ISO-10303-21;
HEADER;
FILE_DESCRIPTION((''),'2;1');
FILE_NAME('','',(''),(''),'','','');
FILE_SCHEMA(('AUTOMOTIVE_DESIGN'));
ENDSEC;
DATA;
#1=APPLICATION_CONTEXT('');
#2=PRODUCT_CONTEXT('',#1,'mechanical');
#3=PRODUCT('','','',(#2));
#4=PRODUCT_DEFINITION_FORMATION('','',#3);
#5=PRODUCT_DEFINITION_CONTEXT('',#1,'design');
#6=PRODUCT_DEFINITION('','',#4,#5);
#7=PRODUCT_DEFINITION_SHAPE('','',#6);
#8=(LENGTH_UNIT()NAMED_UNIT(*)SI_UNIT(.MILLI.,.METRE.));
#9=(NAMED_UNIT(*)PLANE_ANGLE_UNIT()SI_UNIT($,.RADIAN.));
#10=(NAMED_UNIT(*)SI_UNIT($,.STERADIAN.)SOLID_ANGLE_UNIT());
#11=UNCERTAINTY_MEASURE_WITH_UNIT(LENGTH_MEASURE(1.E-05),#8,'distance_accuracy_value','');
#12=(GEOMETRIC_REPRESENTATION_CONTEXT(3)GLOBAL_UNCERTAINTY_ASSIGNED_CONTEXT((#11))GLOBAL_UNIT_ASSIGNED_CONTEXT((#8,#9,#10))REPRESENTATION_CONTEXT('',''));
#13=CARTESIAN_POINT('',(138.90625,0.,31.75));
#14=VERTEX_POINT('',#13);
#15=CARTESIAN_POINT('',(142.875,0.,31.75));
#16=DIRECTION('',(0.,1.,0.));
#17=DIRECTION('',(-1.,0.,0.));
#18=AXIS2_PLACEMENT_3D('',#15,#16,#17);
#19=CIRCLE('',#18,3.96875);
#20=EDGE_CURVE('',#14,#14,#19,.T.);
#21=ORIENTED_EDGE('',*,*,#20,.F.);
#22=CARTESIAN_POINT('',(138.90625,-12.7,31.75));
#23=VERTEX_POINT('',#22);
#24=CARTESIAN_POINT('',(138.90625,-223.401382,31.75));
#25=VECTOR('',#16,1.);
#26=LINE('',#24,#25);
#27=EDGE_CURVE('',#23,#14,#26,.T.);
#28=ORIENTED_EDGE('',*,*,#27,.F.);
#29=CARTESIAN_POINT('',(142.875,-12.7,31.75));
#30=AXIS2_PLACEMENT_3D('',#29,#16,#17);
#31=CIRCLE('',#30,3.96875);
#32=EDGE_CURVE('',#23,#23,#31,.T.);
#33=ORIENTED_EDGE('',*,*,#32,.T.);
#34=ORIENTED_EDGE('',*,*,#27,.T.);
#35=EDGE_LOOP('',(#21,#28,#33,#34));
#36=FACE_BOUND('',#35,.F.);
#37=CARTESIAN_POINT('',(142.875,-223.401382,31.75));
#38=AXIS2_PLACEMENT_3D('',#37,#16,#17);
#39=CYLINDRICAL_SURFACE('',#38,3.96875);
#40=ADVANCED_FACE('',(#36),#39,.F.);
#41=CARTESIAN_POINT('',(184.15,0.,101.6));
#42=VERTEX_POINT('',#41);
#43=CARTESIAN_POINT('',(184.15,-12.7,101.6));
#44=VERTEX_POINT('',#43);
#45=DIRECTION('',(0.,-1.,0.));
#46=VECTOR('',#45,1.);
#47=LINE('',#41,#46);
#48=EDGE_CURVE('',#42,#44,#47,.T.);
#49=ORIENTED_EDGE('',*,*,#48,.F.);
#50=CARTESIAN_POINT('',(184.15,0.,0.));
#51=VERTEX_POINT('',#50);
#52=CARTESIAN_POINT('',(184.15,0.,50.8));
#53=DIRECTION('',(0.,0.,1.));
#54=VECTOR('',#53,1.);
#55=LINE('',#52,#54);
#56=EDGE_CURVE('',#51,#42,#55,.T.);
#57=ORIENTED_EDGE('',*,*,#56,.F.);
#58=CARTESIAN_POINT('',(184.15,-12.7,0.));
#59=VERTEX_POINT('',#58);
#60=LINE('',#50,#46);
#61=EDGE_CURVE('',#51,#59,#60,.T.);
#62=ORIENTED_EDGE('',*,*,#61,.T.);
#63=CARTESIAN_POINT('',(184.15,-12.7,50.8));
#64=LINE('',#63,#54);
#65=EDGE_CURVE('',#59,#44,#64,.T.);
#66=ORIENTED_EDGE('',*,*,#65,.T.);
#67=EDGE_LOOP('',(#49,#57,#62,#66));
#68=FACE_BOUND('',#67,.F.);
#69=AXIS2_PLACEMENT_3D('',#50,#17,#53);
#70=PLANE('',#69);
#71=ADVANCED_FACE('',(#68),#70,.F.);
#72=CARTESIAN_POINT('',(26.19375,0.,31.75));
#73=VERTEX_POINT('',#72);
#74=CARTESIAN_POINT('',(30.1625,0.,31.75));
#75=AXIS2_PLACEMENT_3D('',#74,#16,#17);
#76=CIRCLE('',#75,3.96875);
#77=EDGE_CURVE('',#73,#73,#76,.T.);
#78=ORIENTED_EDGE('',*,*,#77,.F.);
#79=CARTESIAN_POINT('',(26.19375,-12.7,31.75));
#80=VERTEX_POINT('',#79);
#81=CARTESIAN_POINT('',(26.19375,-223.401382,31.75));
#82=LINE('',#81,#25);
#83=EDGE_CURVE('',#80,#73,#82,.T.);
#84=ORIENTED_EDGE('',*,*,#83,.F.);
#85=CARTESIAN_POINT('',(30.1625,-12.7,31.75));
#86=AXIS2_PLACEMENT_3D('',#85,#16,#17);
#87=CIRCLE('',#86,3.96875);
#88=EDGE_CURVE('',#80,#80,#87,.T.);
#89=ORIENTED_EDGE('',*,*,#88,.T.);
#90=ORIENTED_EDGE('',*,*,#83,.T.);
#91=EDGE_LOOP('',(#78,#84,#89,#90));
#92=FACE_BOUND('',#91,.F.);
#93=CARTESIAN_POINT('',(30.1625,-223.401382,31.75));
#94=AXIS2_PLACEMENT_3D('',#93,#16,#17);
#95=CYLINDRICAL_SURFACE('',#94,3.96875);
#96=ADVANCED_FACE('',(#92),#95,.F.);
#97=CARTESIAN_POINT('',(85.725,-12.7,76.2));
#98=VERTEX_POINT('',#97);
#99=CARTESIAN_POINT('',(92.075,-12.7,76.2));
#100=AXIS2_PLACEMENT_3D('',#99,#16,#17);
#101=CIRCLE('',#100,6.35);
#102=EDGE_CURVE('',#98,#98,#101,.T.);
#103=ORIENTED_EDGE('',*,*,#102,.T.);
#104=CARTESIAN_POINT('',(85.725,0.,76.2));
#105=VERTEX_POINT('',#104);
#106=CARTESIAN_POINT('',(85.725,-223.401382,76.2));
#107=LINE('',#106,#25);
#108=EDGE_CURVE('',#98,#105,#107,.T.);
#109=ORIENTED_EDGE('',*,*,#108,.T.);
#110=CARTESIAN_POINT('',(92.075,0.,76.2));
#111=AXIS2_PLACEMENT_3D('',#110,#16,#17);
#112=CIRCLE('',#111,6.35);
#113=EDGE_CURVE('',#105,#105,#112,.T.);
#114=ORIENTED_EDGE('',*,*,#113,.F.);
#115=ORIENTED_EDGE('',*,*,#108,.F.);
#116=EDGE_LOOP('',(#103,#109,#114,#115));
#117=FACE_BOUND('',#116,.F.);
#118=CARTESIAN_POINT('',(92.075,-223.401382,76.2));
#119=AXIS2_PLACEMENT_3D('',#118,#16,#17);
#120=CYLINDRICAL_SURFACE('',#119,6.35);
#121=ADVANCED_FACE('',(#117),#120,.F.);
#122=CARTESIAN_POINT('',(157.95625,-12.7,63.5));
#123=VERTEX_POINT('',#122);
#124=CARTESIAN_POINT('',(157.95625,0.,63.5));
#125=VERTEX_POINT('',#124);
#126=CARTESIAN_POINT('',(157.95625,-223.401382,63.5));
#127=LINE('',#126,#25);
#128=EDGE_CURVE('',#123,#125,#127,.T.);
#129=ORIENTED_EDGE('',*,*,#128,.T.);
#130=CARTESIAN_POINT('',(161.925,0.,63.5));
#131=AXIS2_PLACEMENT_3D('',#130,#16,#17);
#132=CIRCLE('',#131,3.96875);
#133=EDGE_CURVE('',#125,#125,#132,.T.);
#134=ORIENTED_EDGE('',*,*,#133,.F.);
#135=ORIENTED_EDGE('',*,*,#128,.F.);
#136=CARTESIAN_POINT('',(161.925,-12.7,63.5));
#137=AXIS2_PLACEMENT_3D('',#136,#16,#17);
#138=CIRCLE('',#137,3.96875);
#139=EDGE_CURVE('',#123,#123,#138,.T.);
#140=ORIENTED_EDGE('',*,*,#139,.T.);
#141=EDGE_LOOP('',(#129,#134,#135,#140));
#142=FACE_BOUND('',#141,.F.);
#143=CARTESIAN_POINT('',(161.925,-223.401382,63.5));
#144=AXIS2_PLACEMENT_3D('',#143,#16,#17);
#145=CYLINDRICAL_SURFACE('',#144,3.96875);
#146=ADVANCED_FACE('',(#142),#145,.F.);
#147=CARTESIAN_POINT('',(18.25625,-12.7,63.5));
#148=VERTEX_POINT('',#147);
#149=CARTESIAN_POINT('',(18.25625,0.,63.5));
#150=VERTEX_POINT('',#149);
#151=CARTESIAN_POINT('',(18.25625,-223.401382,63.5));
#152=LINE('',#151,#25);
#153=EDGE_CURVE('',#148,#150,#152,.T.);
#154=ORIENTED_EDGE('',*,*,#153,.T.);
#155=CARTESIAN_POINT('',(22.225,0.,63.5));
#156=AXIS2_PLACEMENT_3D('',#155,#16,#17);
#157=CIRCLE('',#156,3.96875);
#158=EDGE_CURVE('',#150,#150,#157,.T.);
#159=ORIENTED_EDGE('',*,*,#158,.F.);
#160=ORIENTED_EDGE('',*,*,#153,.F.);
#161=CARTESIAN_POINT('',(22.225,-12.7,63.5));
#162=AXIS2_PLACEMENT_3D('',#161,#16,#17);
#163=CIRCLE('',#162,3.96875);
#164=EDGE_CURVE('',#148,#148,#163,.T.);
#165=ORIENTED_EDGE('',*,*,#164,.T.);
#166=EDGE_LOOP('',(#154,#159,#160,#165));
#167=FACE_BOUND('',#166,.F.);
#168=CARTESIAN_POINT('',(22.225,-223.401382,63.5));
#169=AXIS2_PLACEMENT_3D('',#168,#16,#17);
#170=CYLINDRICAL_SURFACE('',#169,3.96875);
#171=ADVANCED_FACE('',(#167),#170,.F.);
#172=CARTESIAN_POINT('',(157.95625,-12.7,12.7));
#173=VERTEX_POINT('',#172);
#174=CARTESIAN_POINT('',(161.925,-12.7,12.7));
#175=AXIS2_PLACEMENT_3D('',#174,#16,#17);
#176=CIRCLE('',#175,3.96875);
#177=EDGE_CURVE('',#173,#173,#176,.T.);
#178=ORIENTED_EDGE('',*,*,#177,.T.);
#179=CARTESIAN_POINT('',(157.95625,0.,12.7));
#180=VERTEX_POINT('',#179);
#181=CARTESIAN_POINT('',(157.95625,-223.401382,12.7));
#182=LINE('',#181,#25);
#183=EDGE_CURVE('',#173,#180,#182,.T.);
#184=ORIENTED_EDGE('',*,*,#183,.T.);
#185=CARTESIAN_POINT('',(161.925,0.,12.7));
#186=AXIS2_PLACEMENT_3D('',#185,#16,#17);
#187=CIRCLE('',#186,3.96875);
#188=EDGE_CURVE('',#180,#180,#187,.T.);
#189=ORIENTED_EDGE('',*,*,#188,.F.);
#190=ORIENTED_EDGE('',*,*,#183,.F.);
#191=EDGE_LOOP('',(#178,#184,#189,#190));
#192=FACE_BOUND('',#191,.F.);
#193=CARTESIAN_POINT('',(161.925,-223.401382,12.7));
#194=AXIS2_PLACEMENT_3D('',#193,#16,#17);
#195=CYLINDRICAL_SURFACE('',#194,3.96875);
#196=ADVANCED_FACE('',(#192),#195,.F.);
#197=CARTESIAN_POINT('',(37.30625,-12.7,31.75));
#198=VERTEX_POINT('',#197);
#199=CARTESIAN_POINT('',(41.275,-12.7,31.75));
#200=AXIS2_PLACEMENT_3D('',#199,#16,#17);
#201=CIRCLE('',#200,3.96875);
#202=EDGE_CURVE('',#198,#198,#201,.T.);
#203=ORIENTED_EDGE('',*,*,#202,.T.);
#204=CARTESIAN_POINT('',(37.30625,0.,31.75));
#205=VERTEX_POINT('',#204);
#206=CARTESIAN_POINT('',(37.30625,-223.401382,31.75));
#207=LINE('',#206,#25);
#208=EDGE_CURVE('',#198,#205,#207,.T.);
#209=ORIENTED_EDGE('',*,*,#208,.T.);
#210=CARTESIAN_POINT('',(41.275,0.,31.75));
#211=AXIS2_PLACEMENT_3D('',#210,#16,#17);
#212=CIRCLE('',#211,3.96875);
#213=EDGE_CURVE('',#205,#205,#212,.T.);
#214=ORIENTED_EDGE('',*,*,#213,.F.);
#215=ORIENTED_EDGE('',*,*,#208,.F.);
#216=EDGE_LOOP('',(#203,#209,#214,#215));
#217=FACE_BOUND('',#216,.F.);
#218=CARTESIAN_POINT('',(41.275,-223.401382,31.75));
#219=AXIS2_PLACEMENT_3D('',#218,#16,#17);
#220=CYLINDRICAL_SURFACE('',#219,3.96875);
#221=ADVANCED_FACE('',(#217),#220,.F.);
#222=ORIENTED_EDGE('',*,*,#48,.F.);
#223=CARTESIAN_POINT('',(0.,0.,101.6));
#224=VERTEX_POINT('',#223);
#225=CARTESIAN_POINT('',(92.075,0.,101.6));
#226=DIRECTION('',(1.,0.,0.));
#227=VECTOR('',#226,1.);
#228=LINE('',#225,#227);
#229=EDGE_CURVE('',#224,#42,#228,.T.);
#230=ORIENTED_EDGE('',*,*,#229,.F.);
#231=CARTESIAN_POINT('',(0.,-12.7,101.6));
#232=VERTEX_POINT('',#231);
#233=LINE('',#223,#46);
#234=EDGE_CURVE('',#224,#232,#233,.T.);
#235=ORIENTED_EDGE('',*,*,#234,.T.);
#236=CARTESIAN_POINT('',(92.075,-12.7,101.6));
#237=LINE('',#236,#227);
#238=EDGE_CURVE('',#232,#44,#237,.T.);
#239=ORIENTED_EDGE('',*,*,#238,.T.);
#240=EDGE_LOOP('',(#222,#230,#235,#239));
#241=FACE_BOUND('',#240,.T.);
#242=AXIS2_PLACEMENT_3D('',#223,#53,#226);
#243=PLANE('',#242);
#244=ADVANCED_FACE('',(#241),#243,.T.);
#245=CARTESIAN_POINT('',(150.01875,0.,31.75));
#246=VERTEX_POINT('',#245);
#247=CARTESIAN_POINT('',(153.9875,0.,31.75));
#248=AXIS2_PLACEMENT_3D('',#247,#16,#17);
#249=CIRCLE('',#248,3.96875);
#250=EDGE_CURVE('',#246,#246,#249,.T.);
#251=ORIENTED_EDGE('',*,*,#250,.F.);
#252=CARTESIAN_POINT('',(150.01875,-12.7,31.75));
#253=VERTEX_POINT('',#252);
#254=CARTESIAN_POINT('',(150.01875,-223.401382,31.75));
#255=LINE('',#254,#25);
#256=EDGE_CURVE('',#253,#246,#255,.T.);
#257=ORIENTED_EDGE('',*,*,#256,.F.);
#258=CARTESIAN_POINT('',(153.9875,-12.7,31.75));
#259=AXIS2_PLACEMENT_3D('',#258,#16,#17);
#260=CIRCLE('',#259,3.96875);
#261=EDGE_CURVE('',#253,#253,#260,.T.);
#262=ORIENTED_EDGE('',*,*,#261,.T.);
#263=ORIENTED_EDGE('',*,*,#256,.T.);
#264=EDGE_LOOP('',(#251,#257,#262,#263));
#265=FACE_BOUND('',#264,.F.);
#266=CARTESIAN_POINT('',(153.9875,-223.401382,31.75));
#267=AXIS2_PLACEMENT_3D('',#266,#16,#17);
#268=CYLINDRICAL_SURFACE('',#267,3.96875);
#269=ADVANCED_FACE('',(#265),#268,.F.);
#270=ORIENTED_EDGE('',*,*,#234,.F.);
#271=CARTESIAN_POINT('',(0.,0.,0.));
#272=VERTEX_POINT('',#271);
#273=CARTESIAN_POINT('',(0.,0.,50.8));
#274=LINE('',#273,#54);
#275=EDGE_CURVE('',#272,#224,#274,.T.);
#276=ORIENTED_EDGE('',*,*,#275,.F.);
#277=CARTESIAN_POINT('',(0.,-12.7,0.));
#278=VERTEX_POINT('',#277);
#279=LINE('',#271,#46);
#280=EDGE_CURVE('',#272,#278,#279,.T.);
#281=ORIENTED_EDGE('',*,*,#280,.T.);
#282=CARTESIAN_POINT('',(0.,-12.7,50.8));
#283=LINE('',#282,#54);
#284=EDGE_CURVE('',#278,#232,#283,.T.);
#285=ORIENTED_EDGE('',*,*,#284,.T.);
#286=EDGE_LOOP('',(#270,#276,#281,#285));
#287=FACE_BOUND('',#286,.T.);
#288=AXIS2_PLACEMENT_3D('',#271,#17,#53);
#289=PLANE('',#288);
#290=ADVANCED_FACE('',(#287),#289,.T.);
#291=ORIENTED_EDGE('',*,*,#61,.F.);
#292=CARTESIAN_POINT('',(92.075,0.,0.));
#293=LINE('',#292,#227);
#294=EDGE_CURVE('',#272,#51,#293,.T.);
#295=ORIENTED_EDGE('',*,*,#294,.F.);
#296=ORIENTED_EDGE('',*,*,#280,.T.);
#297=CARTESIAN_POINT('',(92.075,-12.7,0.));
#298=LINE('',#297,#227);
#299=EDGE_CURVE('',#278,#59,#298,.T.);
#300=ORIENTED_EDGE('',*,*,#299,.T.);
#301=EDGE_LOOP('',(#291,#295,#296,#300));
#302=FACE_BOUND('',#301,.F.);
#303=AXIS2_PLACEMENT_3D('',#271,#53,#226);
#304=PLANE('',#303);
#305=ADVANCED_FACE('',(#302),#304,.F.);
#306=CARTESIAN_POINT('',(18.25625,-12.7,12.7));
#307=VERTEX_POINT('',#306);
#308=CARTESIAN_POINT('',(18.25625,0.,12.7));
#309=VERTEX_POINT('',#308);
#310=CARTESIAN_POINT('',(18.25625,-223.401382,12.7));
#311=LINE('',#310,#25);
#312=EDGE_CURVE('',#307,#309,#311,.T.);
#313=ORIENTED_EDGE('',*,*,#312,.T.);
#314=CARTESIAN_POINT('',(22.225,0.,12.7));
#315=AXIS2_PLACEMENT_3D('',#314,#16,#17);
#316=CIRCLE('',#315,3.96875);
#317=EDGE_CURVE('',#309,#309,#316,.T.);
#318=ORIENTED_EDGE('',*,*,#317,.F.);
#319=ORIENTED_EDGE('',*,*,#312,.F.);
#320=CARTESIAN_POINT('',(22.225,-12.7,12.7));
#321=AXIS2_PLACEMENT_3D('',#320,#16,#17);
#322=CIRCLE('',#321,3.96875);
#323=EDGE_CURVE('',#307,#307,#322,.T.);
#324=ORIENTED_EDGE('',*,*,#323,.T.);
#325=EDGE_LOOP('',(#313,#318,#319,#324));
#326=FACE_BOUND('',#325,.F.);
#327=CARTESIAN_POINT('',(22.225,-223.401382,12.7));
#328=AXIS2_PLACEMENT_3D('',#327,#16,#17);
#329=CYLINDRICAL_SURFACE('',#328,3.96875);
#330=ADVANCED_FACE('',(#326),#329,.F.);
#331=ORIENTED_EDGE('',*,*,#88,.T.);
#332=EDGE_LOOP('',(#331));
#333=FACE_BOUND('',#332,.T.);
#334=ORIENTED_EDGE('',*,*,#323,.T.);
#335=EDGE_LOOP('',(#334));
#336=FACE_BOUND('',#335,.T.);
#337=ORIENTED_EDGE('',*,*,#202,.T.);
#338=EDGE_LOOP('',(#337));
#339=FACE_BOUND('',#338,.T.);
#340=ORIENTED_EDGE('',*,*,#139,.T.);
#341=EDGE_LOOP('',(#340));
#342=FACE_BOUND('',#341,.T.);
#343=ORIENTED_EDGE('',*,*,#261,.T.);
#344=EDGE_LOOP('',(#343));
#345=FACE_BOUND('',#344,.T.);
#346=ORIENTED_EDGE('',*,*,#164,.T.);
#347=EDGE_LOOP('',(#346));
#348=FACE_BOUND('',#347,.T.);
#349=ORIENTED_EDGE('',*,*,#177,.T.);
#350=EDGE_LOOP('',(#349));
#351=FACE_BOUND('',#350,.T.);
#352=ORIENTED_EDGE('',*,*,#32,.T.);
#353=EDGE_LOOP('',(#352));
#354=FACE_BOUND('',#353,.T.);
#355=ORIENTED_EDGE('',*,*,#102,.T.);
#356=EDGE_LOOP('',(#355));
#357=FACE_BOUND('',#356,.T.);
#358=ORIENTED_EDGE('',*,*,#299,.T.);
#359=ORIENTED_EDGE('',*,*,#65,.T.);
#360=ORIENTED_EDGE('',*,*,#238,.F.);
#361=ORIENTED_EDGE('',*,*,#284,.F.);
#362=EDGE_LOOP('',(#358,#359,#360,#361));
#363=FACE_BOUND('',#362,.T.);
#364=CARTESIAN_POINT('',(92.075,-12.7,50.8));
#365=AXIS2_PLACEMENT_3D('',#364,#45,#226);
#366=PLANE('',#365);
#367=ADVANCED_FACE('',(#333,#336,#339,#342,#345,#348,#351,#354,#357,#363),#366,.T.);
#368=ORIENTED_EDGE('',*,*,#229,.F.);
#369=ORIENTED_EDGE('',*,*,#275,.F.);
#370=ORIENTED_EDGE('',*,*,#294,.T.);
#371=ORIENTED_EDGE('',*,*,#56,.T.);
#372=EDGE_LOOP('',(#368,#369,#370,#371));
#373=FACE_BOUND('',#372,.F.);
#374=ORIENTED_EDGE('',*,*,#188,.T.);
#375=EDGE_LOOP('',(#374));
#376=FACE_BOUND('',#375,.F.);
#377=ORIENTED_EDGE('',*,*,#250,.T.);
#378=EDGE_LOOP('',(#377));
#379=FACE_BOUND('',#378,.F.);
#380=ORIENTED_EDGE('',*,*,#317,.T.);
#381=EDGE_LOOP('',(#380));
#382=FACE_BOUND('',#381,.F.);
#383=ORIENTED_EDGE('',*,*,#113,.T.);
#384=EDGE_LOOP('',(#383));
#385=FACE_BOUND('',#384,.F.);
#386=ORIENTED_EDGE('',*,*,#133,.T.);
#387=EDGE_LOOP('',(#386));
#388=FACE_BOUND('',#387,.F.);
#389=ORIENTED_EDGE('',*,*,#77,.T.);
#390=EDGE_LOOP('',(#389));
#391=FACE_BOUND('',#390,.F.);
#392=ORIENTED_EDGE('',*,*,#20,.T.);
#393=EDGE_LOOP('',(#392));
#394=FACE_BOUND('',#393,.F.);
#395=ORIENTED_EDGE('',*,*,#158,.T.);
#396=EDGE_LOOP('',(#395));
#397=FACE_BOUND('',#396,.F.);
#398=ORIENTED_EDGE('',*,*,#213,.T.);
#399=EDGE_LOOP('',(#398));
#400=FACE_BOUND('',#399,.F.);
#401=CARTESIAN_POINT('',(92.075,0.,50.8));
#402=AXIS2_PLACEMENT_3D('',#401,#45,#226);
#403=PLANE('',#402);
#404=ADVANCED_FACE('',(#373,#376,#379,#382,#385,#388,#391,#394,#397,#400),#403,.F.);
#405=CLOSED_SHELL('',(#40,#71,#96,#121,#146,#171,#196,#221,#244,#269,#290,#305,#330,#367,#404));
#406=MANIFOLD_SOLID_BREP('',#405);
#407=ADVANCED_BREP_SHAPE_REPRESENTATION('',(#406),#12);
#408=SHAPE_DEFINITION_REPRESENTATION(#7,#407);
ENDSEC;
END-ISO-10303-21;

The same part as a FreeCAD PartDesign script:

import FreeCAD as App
import Part
import Sketcher

V = App.Vector
Q = App.Units.Quantity


def add_polygon(sketch, points):
    """Adds a closed chain of lines whose ends are joined by coincident constraints."""
    first, n = sketch.GeometryCount, len(points)
    for a, b in zip(points, points[1:] + points[:1]):
        sketch.addGeometry(Part.LineSegment(App.Vector(*a, 0), App.Vector(*b, 0)), False)
    for i in range(n):
        sketch.addConstraint(Sketcher.Constraint("Coincident", first + i, 2, first + (i + 1) % n, 1))

doc = App.newDocument("Part")
body = doc.addObject("PartDesign::Body", "Body")

sketch1 = body.newObject("Sketcher::SketchObject", "Sketch")
sketch1.AttachmentSupport = (doc.getObject("XZ_Plane"), [""])
sketch1.MapMode = "FlatFace"
add_polygon(sketch1, [(0, 102), (0, 0), (184, 0), (184, 102)])
sketch1.addConstraint([
    Sketcher.Constraint("Vertical", 0),
    Sketcher.Constraint("Horizontal", 1),
    Sketcher.Constraint("Vertical", 2),
    Sketcher.Constraint("Horizontal", 3),
    Sketcher.Constraint("Coincident", 0, 2, -1, 1),
    Sketcher.Constraint("DistanceY", 0, 2, 0, 1, Q("4 in")),
    Sketcher.Constraint("DistanceX", 1, 1, 1, 2, Q("7.25 in")),
])
pad1 = body.newObject("PartDesign::Pad", "Pad")
pad1.Profile = sketch1
pad1.Length = Q("0.5 in")

sketch2 = body.newObject("Sketcher::SketchObject", "Sketch001")
sketch2.AttachmentSupport = (doc.getObject("XZ_Plane"), [""])
sketch2.MapMode = "FlatFace"
sketch2.AttachmentOffset = App.Placement(V(0, 0, 0.5 * 25.4), App.Rotation())
sketch2.addGeometry(Part.Circle(V(92, 76, 0), V(0, 0, 1), 6), False)
sketch2.addConstraint([
    Sketcher.Constraint("Diameter", 0, Q("0.5 in")),
    Sketcher.Constraint("DistanceY", -1, 1, 0, 3, Q("3 in")),
    Sketcher.Constraint("DistanceX", -1, 1, 0, 3, Q("3.625 in")),
])
doc.recompute()
hole = body.newObject("PartDesign::Hole", "Hole")
hole.Profile = sketch2
hole.ThreadType = "None"
hole.Diameter = Q("0.5 in")
hole.DepthType = "ThroughAll"

sketch3 = body.newObject("Sketcher::SketchObject", "Sketch002")
sketch3.AttachmentSupport = (doc.getObject("XZ_Plane"), [""])
sketch3.MapMode = "FlatFace"
sketch3.AttachmentOffset = App.Placement(V(0, 0, 0.5 * 25.4), App.Rotation())
sketch3.addGeometry([
    Part.Circle(V(22.2, 63.5, 0), V(0, 0, 1), 4),
    Part.Circle(V(161.9, 63.5, 0), V(0, 0, 1), 4),
    Part.Circle(V(161.9, 12.7, 0), V(0, 0, 1), 4),
    Part.Circle(V(22.2, 12.7, 0), V(0, 0, 1), 4),
], False)
sketch3.addConstraint([
    Sketcher.Constraint("Equal", 0, 1),
    Sketcher.Constraint("Equal", 1, 2),
    Sketcher.Constraint("Equal", 2, 3),
    Sketcher.Constraint("Horizontal", 0, 3, 1, 3),
    Sketcher.Constraint("Horizontal", 2, 3, 3, 3),
    Sketcher.Constraint("Vertical", 1, 3, 2, 3),
    Sketcher.Constraint("Vertical", 0, 3, 3, 3),
    Sketcher.Constraint("Diameter", 0, Q("0.3125 in")),
    Sketcher.Constraint("DistanceY", 2, 3, 1, 3, Q("2 in")),
    Sketcher.Constraint("DistanceY", -1, 1, 0, 3, Q("2.5 in")),
    Sketcher.Constraint("DistanceX", 0, 3, 1, 3, Q("5.5 in")),
    Sketcher.Constraint("DistanceX", -1, 1, 0, 3, Q("0.875 in")),
])
doc.recompute()
hole2 = body.newObject("PartDesign::Hole", "Hole001")
hole2.Profile = sketch3
hole2.ThreadType = "None"
hole2.Diameter = Q("0.3125 in")
hole2.DepthType = "ThroughAll"

sketch4 = body.newObject("Sketcher::SketchObject", "Sketch003")
sketch4.AttachmentSupport = (doc.getObject("XZ_Plane"), [""])
sketch4.MapMode = "FlatFace"
sketch4.AttachmentOffset = App.Placement(V(0, 0, 0.5 * 25.4), App.Rotation())
sketch4.addGeometry([
    Part.Circle(V(41.3, 31.8, 0), V(0, 0, 1), 4),
    Part.Circle(V(142.9, 31.8, 0), V(0, 0, 1), 4),
    Part.Circle(V(30.2, 31.8, 0), V(0, 0, 1), 4),
    Part.Circle(V(154, 31.8, 0), V(0, 0, 1), 4),
], False)
sketch4.addConstraint([
    Sketcher.Constraint("Equal", 0, 1),
    Sketcher.Constraint("Equal", 1, 2),
    Sketcher.Constraint("Equal", 2, 3),
    Sketcher.Constraint("Horizontal", 0, 3, 1, 3),
    Sketcher.Constraint("Horizontal", 1, 3, 2, 3),
    Sketcher.Constraint("Horizontal", 2, 3, 3, 3),
    Sketcher.Constraint("Diameter", 0, Q("0.3125 in")),
    Sketcher.Constraint("DistanceX", 0, 3, 1, 3, Q("4 in")),
    Sketcher.Constraint("DistanceY", -1, 1, 0, 3, Q("1.25 in")),
    Sketcher.Constraint("DistanceX", -1, 1, 0, 3, Q("1.625 in")),
    Sketcher.Constraint("DistanceX", -1, 1, 2, 3, Q("1.1875 in")),
    Sketcher.Constraint("DistanceX", -1, 1, 3, 3, Q("6.0625 in")),
])
doc.recompute()
hole3 = body.newObject("PartDesign::Hole", "Hole002")
hole3.Profile = sketch4
hole3.ThreadType = "None"
hole3.Diameter = Q("0.3125 in")
hole3.DepthType = "ThroughAll"

doc.recompute()
